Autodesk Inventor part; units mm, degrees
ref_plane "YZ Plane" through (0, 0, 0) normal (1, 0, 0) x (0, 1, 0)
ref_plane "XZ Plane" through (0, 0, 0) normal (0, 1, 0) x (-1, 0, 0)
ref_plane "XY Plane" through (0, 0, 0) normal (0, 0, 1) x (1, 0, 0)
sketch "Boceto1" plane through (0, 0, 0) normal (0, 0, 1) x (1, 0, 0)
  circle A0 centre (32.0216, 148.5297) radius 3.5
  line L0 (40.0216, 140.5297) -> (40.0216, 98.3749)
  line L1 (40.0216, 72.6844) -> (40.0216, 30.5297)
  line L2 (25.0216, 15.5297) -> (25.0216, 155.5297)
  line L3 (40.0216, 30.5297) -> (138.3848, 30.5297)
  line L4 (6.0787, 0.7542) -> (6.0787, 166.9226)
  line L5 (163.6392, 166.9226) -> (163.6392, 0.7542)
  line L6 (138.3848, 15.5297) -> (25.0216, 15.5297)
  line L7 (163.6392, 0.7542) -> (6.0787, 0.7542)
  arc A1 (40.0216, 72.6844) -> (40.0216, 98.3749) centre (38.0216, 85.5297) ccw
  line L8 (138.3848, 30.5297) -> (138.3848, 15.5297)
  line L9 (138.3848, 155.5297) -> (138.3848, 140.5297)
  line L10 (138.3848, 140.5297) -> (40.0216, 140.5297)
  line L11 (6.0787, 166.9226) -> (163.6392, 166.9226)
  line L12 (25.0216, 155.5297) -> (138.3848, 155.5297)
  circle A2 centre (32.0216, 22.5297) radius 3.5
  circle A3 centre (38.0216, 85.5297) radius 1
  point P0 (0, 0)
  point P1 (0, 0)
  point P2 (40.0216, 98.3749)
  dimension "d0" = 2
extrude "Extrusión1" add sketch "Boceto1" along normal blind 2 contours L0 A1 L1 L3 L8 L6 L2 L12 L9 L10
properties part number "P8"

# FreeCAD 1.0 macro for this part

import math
import FreeCAD as App
import Part
import Sketcher

doc = App.newDocument("Part")
params = doc.addObject("Spreadsheet::Sheet", "Params")
for row, (alias, value) in enumerate([
    ("sketch1_diameter", "2 mm"),
    ("sketch1_diameter2", "7 mm"),
    ("sketch1_radius", "13 mm"),
    ("sketch1_height", "15 mm"),
    ("sketch1_height2", "140 mm"),
    ("pad1_length", "2 mm"),
], start=1):
    params.set(f"A{row}", alias)
    params.set(f"B{row}", "=" + value)
    params.setAlias(f"B{row}", alias)

body = doc.addObject("PartDesign::Body", "Body")

# Sketch on XY plane
sketch1 = body.newObject("Sketcher::SketchObject", "Sketch")
sketch1.AttachmentSupport = (doc.getObject("XY_Plane"), [""])
sketch1.MapMode = "FlatFace"
sketch1.addGeometry(Part.LineSegment(App.Vector(40.0216, 98.3749, 0), App.Vector(40.0216, 140.5297, 0)), False)
sketch1.addGeometry(Part.LineSegment(App.Vector(40.0216, 140.5297, 0), App.Vector(138.3848, 140.5297, 0)), False)
sketch1.addGeometry(Part.LineSegment(App.Vector(138.3848, 140.5297, 0), App.Vector(138.3848, 155.5297, 0)), False)
sketch1.addGeometry(Part.LineSegment(App.Vector(138.3848, 155.5297, 0), App.Vector(25.0216, 155.5297, 0)), False)
sketch1.addGeometry(Part.LineSegment(App.Vector(25.0216, 155.5297, 0), App.Vector(25.0216, 15.5297, 0)), False)
sketch1.addGeometry(Part.LineSegment(App.Vector(25.0216, 15.5297, 0), App.Vector(138.3848, 15.5297, 0)), False)
sketch1.addGeometry(Part.LineSegment(App.Vector(138.3848, 15.5297, 0), App.Vector(138.3848, 30.5297, 0)), False)
sketch1.addGeometry(Part.LineSegment(App.Vector(138.3848, 30.5297, 0), App.Vector(40.0216, 30.5297, 0)), False)
sketch1.addGeometry(Part.LineSegment(App.Vector(40.0216, 30.5297, 0), App.Vector(40.0216, 72.6844, 0)), False)
sketch1.addGeometry(Part.ArcOfCircle(Part.Circle(App.Vector(38.0216, 85.5297, 0), App.Vector(0, 0, 1), 13.000067), math.radians(-81.150163), math.radians(81.150095)), False)
sketch1.addGeometry(Part.Circle(App.Vector(32.0216, 22.5297, 0), App.Vector(0, 0, 1), 3.5), False)
sketch1.addGeometry(Part.Circle(App.Vector(38.0216, 85.5297, 0), App.Vector(0, 0, 1), 1), False)
sketch1.addGeometry(Part.Circle(App.Vector(32.0216, 148.5297, 0), App.Vector(0, 0, 1), 3.5), False)
sketch1.addConstraint(Sketcher.Constraint("Coincident", 0, 2, 1, 1))
sketch1.addConstraint(Sketcher.Constraint("Coincident", 1, 2, 2, 1))
sketch1.addConstraint(Sketcher.Constraint("Coincident", 2, 2, 3, 1))
sketch1.addConstraint(Sketcher.Constraint("Coincident", 3, 2, 4, 1))
sketch1.addConstraint(Sketcher.Constraint("Coincident", 4, 2, 5, 1))
sketch1.addConstraint(Sketcher.Constraint("Coincident", 5, 2, 6, 1))
sketch1.addConstraint(Sketcher.Constraint("Coincident", 6, 2, 7, 1))
sketch1.addConstraint(Sketcher.Constraint("Coincident", 7, 2, 8, 1))
sketch1.addConstraint(Sketcher.Constraint("Coincident", 8, 2, 9, 1))
sketch1.addConstraint(Sketcher.Constraint("Coincident", 9, 2, 0, 1))
sketch1.addConstraint(Sketcher.Constraint("Vertical", 0))
sketch1.addConstraint(Sketcher.Constraint("Horizontal", 1))
sketch1.addConstraint(Sketcher.Constraint("Vertical", 2))
sketch1.addConstraint(Sketcher.Constraint("Horizontal", 3))
sketch1.addConstraint(Sketcher.Constraint("Vertical", 4))
sketch1.addConstraint(Sketcher.Constraint("Horizontal", 5))
sketch1.addConstraint(Sketcher.Constraint("Vertical", 6))
sketch1.addConstraint(Sketcher.Constraint("Horizontal", 7))
sketch1.addConstraint(Sketcher.Constraint("Vertical", 8))
sketch1.addConstraint(Sketcher.Constraint("Coincident", 11, 3, 9, 3))
sketch1.addConstraint(Sketcher.Constraint("Equal", 10, 12))
sketch1.addConstraint(Sketcher.Constraint("Vertical", 10, 3, 12, 3))
sketch1.addConstraint(Sketcher.Constraint("Vertical", 2, 2, 5, 2))
sketch1.addConstraint(Sketcher.Constraint("Vertical", 0, 2, 7, 2))
sketch1.addConstraint(Sketcher.Constraint("Equal", 2, 6))
sketch1.addConstraint(Sketcher.Constraint("Equal", 0, 8))
sketch1.addConstraint(Sketcher.Constraint("Diameter", 11, 2.0))
sketch1.addConstraint(Sketcher.Constraint("Diameter", 10, 7.0))
sketch1.addConstraint(Sketcher.Constraint("Radius", 9, 13.0))
sketch1.addConstraint(Sketcher.Constraint("DistanceX", 9, 3, 0, 2, 2.0))
sketch1.addConstraint(Sketcher.Constraint("DistanceY", 2, 1, 2, 2, 15.0))
sketch1.addConstraint(Sketcher.Constraint("DistanceY", 4, 2, 4, 1, 140.0))
sketch1.addConstraint(Sketcher.Constraint("DistanceX", 10, 3, 9, 3, 6.0))
sketch1.addConstraint(Sketcher.Constraint("DistanceY", 10, 3, 9, 3, 63.0))
sketch1.addConstraint(Sketcher.Constraint("DistanceY", 9, 3, 12, 3, 63.0))
sketch1.addConstraint(Sketcher.Constraint("DistanceX", 3, 2, 12, 3, 7.0))
sketch1.addConstraint(Sketcher.Constraint("DistanceX", 1, 1, 1, 2, 98.3632))
sketch1.addConstraint(Sketcher.Constraint("DistanceY", -1, 1, 9, 2, 98.375))
sketch1.addConstraint(Sketcher.Constraint("DistanceX", -1, 1, 9, 3, 38.0216))
sketch1.setExpression("Constraints[26]", "Params.sketch1_diameter")
sketch1.setExpression("Constraints[27]", "Params.sketch1_diameter2")
sketch1.setExpression("Constraints[28]", "Params.sketch1_radius")
sketch1.setExpression("Constraints[30]", "Params.sketch1_height")
sketch1.setExpression("Constraints[31]", "Params.sketch1_height2")
pad1 = body.newObject("PartDesign::Pad", "Pad")
pad1.Profile = sketch1
pad1.setExpression("Length", "Params.pad1_length")

doc.recompute()
